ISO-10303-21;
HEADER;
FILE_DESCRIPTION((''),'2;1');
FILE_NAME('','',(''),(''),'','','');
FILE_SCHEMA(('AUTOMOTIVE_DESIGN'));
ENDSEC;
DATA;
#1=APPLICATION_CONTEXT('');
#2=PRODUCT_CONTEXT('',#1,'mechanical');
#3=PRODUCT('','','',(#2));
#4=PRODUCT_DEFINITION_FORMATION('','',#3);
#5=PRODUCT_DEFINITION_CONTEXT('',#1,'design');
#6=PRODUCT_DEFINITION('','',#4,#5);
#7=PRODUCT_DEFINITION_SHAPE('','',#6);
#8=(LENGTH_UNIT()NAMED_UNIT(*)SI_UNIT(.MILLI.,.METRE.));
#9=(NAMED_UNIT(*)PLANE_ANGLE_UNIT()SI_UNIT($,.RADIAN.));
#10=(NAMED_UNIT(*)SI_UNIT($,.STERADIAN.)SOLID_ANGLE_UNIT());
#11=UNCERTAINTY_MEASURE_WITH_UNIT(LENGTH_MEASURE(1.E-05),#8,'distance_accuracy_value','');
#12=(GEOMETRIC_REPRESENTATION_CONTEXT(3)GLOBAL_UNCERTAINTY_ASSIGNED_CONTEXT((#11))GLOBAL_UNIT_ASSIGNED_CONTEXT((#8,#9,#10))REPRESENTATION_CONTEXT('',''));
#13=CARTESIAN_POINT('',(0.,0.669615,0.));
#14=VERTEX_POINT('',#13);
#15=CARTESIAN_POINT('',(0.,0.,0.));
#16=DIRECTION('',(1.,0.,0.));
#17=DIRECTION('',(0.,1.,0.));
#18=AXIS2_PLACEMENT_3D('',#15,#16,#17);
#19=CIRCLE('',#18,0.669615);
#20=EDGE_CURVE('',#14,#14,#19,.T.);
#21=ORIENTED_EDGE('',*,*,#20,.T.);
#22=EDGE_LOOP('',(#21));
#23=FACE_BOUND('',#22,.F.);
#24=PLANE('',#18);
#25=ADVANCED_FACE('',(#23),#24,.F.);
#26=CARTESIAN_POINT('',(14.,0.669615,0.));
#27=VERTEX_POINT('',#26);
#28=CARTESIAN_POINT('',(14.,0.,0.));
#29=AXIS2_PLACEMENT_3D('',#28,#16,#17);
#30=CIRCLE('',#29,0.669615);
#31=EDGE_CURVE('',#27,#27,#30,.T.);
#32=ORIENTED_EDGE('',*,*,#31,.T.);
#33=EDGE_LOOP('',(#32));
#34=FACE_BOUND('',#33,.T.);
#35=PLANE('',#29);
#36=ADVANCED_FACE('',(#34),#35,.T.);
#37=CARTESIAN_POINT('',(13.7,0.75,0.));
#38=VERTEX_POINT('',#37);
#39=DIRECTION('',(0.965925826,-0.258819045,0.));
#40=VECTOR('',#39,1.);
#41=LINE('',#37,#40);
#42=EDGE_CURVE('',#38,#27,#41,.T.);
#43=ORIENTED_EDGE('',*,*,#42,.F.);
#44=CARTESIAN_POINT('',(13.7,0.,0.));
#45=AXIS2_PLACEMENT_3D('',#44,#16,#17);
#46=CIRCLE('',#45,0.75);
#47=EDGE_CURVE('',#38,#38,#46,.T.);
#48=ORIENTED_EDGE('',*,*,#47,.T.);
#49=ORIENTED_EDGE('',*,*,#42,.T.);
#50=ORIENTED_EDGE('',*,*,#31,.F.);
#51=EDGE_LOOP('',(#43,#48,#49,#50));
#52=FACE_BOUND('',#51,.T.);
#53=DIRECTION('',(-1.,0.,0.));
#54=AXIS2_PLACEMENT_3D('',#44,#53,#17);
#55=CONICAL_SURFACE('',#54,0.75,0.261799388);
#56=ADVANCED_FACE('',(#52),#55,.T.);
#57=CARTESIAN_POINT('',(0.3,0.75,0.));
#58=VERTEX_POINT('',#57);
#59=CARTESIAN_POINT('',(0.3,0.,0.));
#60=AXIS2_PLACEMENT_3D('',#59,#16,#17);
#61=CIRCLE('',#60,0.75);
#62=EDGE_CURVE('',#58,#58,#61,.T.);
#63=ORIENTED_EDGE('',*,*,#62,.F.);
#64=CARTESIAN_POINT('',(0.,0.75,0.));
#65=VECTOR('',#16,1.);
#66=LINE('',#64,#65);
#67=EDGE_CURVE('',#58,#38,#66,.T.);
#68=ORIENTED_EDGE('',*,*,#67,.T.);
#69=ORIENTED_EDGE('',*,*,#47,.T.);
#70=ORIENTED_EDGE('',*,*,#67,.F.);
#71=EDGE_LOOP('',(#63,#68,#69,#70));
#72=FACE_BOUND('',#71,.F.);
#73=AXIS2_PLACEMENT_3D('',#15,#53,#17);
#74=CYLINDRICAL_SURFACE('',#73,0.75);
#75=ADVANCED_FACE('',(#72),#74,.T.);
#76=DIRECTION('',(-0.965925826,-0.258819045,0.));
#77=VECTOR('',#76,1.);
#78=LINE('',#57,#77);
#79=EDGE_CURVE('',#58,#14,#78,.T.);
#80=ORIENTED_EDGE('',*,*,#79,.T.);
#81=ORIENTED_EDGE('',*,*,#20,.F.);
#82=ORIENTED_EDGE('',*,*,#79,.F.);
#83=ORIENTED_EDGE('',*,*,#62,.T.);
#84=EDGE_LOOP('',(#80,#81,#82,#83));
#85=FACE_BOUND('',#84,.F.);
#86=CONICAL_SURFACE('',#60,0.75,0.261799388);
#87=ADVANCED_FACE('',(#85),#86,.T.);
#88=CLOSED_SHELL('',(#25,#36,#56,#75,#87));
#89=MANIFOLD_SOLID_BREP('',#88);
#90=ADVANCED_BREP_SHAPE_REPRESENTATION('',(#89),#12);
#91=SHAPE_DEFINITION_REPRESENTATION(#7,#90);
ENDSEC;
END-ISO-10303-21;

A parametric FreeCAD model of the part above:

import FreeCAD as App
import Part
import Sketcher

V = App.Vector
Q = App.Units.Quantity


def edges_at(feature, points):
    """Names of the edges that pass closest to the given points."""
    edges = feature.Shape.Edges
    near = lambda p: min(range(len(edges)), key=lambda i: edges[i].distToShape(Part.Vertex(*p))[0])
    return sorted({f"Edge{near(p) + 1}" for p in points})

doc = App.newDocument("Part")
body = doc.addObject("PartDesign::Body", "Body")

sketch1 = body.newObject("Sketcher::SketchObject", "Sketch")
sketch1.AttachmentSupport = (doc.getObject("YZ_Plane"), [""])
sketch1.MapMode = "FlatFace"
sketch1.addGeometry(Part.Circle(V(0, 0, 0), V(0, 0, 1), 0.8), False)
sketch1.addConstraint(Sketcher.Constraint("Coincident", 0, 3, -1, 1))
sketch1.addConstraint(Sketcher.Constraint("Diameter", 0, Q("1.5 mm")))
pad1 = body.newObject("PartDesign::Pad", "Pad")
pad1.Profile = sketch1
pad1.Length = 14
doc.recompute()

chamfer = body.newObject("PartDesign::Chamfer", "Chamfer")
chamfer.Base = (pad1, edges_at(pad1, [(0, -0.75, 0)]))
chamfer.ChamferType = "Distance and Angle"
chamfer.Size = 0.3
chamfer.Angle = 15
doc.recompute()

chamfer2 = body.newObject("PartDesign::Chamfer", "Chamfer001")
chamfer2.Base = (chamfer, edges_at(chamfer, [(14, -0.75, 0)]))
chamfer2.ChamferType = "Distance and Angle"
chamfer2.Size = 0.3
chamfer2.Angle = 15

doc.recompute()
